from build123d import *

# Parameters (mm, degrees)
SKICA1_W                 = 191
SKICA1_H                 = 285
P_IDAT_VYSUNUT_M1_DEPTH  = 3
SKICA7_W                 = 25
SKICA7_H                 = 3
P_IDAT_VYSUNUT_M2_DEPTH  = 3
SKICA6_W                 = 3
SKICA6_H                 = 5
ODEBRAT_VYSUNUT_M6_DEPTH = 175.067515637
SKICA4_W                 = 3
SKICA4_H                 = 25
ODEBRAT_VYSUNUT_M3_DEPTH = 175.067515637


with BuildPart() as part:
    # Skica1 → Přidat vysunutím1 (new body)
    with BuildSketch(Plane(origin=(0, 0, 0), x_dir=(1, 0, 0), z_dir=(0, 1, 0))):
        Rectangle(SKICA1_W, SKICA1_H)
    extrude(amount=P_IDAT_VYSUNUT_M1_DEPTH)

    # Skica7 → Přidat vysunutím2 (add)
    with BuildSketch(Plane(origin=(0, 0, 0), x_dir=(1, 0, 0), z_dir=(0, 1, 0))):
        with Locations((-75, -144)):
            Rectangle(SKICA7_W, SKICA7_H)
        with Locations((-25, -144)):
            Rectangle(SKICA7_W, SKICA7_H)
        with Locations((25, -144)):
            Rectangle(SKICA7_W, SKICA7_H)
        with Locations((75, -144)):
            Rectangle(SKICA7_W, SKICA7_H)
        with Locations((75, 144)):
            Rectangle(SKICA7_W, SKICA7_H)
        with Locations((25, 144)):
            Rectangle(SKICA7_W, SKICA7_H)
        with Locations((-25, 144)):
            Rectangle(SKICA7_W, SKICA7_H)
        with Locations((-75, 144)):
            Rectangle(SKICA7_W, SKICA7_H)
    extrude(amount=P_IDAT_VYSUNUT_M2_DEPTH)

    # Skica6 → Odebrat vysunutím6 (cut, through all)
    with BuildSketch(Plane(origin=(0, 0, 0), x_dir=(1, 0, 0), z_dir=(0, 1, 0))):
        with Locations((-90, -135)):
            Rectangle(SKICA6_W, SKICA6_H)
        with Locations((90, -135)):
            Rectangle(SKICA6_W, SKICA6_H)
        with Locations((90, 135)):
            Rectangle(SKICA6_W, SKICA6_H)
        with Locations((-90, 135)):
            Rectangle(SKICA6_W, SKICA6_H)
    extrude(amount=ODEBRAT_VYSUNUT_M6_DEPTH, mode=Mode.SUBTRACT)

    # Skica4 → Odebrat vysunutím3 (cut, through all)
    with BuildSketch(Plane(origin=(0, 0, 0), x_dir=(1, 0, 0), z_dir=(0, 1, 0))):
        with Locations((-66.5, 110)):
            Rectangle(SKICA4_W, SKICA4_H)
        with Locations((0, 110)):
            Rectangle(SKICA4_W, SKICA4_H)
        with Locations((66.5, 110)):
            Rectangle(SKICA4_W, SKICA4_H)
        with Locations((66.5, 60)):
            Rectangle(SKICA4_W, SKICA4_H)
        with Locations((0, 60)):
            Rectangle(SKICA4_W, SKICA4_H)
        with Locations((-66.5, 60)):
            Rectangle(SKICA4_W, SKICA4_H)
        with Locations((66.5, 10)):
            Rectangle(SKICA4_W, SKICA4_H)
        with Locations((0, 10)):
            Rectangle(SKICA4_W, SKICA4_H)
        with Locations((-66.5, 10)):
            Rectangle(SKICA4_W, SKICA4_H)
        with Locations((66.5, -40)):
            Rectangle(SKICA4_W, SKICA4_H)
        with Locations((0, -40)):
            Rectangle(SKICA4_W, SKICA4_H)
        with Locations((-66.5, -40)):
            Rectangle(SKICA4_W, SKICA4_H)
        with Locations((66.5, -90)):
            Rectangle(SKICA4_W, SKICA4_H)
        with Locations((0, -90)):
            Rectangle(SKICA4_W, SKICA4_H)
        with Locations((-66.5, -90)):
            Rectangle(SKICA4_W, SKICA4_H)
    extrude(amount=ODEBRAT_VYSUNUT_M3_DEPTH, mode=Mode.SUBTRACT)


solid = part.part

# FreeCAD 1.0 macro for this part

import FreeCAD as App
import Part
import Sketcher

V = App.Vector
Q = App.Units.Quantity


def add_polygon(sketch, points):
    """Adds a closed chain of lines whose ends are joined by coincident constraints."""
    first, n = sketch.GeometryCount, len(points)
    for a, b in zip(points, points[1:] + points[:1]):
        sketch.addGeometry(Part.LineSegment(App.Vector(*a, 0), App.Vector(*b, 0)), False)
    for i in range(n):
        sketch.addConstraint(Sketcher.Constraint("Coincident", first + i, 2, first + (i + 1) % n, 1))

doc = App.newDocument("Part")
body = doc.addObject("PartDesign::Body", "Body")

# Sketch on XZ plane
sketch1 = body.newObject("Sketcher::SketchObject", "Sketch")
sketch1.AttachmentSupport = (doc.getObject("XZ_Plane"), [""])
sketch1.MapMode = "FlatFace"
add_polygon(sketch1, [(-95.5, -142.5), (-95.5, 142.5), (95.5, 142.5), (95.5, -142.5)])  # lines 0-3
sketch1.addConstraint([
    Sketcher.Constraint("Vertical", 0),
    Sketcher.Constraint("Horizontal", 1),
    Sketcher.Constraint("Vertical", 2),
    Sketcher.Constraint("Horizontal", 3),
    Sketcher.Constraint("Symmetric", 0, 2, 2, 2, -1, 1),
    Sketcher.Constraint("DistanceX", 1, 1, 1, 2, Q("191 mm")),
    Sketcher.Constraint("DistanceY", 0, 1, 0, 2, Q("285 mm")),
])
pad1 = body.newObject("PartDesign::Pad", "Pad")
pad1.Profile = sketch1
pad1.Length = 3
pad1.Reversed = True

# Sketch on XZ plane
sketch2 = body.newObject("Sketcher::SketchObject", "Sketch001")
sketch2.AttachmentSupport = (doc.getObject("XZ_Plane"), [""])
sketch2.MapMode = "FlatFace"
add_polygon(sketch2, [(-87.5, 142.5), (-87.5, 145.5), (-62.5, 145.5), (-62.5, 142.5)])  # lines 0-3
add_polygon(sketch2, [(-37.5, 142.5), (-37.5, 145.5), (-12.5, 145.5), (-12.5, 142.5)])  # lines 4-7
add_polygon(sketch2, [(12.5, 142.5), (12.5, 145.5), (37.5, 145.5), (37.5, 142.5)])  # lines 8-11
add_polygon(sketch2, [(62.5, 142.5), (62.5, 145.5), (87.5, 145.5), (87.5, 142.5)])  # lines 12-15
add_polygon(sketch2, [(62.5, -145.5), (62.5, -142.5), (87.5, -142.5), (87.5, -145.5)])  # lines 16-19
add_polygon(sketch2, [(12.5, -145.5), (12.5, -142.5), (37.5, -142.5), (37.5, -145.5)])  # lines 20-23
add_polygon(sketch2, [(-37.5, -145.5), (-37.5, -142.5), (-12.5, -142.5), (-12.5, -145.5)])  # lines 24-27
add_polygon(sketch2, [(-87.5, -145.5), (-87.5, -142.5), (-62.5, -142.5), (-62.5, -145.5)])  # lines 28-31
sketch2.addConstraint([
    Sketcher.Constraint("Vertical", 0),
    Sketcher.Constraint("Horizontal", 1),
    Sketcher.Constraint("Vertical", 2),
    Sketcher.Constraint("Horizontal", 3),
    Sketcher.Constraint("Vertical", 4),
    Sketcher.Constraint("Horizontal", 5),
    Sketcher.Constraint("Vertical", 6),
    Sketcher.Constraint("Horizontal", 7),
    Sketcher.Constraint("Vertical", 8),
    Sketcher.Constraint("Horizontal", 9),
    Sketcher.Constraint("Vertical", 10),
    Sketcher.Constraint("Horizontal", 11),
    Sketcher.Constraint("Vertical", 12),
    Sketcher.Constraint("Horizontal", 13),
    Sketcher.Constraint("Vertical", 14),
    Sketcher.Constraint("Horizontal", 15),
    Sketcher.Constraint("Vertical", 16),
    Sketcher.Constraint("Horizontal", 17),
    Sketcher.Constraint("Vertical", 18),
    Sketcher.Constraint("Horizontal", 19),
    Sketcher.Constraint("Vertical", 20),
    Sketcher.Constraint("Horizontal", 21),
    Sketcher.Constraint("Vertical", 22),
    Sketcher.Constraint("Horizontal", 23),
    Sketcher.Constraint("Vertical", 24),
    Sketcher.Constraint("Horizontal", 25),
    Sketcher.Constraint("Vertical", 26),
    Sketcher.Constraint("Horizontal", 27),
    Sketcher.Constraint("Vertical", 28),
    Sketcher.Constraint("Horizontal", 29),
    Sketcher.Constraint("Vertical", 30),
    Sketcher.Constraint("Horizontal", 31),
    Sketcher.Constraint("Symmetric", 2, 2, 16, 2, -1, 1),
    Sketcher.Constraint("Symmetric", 0, 2, 18, 2, -1, 1),
    Sketcher.Constraint("Symmetric", 6, 2, 20, 2, -1, 1),
    Sketcher.Constraint("Symmetric", 4, 2, 22, 2, -1, 1),
    Sketcher.Constraint("Symmetric", 10, 2, 24, 2, -1, 1),
    Sketcher.Constraint("Symmetric", 8, 2, 26, 2, -1, 1),
    Sketcher.Constraint("Symmetric", 14, 2, 28, 2, -1, 1),
    Sketcher.Constraint("Symmetric", 12, 2, 30, 2, -1, 1),
    Sketcher.Constraint("Symmetric", 5, 2, 8, 2, -2),
    Sketcher.Constraint("Symmetric", 7, 2, 10, 2, -2),
    Sketcher.Constraint("Symmetric", 1, 2, 12, 2, -2),
    Sketcher.Constraint("Symmetric", 3, 2, 14, 2, -2),
    Sketcher.Constraint("Horizontal", 1, 2, 4, 2),
    Sketcher.Constraint("Horizontal", 3, 2, 6, 2),
    Sketcher.Constraint("Equal", 3, 5),
    Sketcher.Constraint("DistanceX", 1, 1, 1, 2, Q("25 mm")),
    Sketcher.Constraint("DistanceY", 0, 1, 0, 2, Q("3 mm")),
    Sketcher.Constraint("DistanceX", 1, 2, 4, 2, Q("25 mm")),
    Sketcher.Constraint("DistanceX", 5, 2, 8, 2, Q("25 mm")),
    Sketcher.Constraint("DistanceY", 16, 2, 15, 2, Q("285 mm")),
])
pad2 = body.newObject("PartDesign::Pad", "Pad001")
pad2.Profile = sketch2
pad2.Length = 3
pad2.Reversed = True

# Sketch on XZ plane
sketch3 = body.newObject("Sketcher::SketchObject", "Sketch002")
sketch3.AttachmentSupport = (doc.getObject("XZ_Plane"), [""])
sketch3.MapMode = "FlatFace"
add_polygon(sketch3, [(-91.5, 132.5), (-91.5, 137.5), (-88.5, 137.5), (-88.5, 132.5)])  # lines 0-3
add_polygon(sketch3, [(88.5, 132.5), (88.5, 137.5), (91.5, 137.5), (91.5, 132.5)])  # lines 4-7
add_polygon(sketch3, [(88.5, -137.5), (88.5, -132.5), (91.5, -132.5), (91.5, -137.5)])  # lines 8-11
add_polygon(sketch3, [(-91.5, -137.5), (-91.5, -132.5), (-88.5, -132.5), (-88.5, -137.5)])  # lines 12-15
sketch3.addConstraint([
    Sketcher.Constraint("Vertical", 0),
    Sketcher.Constraint("Horizontal", 1),
    Sketcher.Constraint("Vertical", 2),
    Sketcher.Constraint("Horizontal", 3),
    Sketcher.Constraint("Vertical", 4),
    Sketcher.Constraint("Horizontal", 5),
    Sketcher.Constraint("Vertical", 6),
    Sketcher.Constraint("Horizontal", 7),
    Sketcher.Constraint("Vertical", 8),
    Sketcher.Constraint("Horizontal", 9),
    Sketcher.Constraint("Vertical", 10),
    Sketcher.Constraint("Horizontal", 11),
    Sketcher.Constraint("Vertical", 12),
    Sketcher.Constraint("Horizontal", 13),
    Sketcher.Constraint("Vertical", 14),
    Sketcher.Constraint("Horizontal", 15),
    Sketcher.Constraint("Symmetric", 2, 2, 8, 2, -1, 1),
    Sketcher.Constraint("Symmetric", 0, 2, 10, 2, -1, 1),
    Sketcher.Constraint("Symmetric", 6, 2, 12, 2, -1, 1),
    Sketcher.Constraint("Symmetric", 4, 2, 14, 2, -1, 1),
    Sketcher.Constraint("Symmetric", 1, 2, 4, 2, -2),
    Sketcher.Constraint("Symmetric", 3, 2, 6, 2, -2),
    Sketcher.Constraint("DistanceX", 1, 1, 1, 2, Q("3 mm")),
    Sketcher.Constraint("DistanceY", 0, 1, 0, 2, Q("5 mm")),
    Sketcher.Constraint("DistanceX", 1, 2, 4, 2, Q("177 mm")),
    Sketcher.Constraint("DistanceY", 8, 2, 7, 2, Q("265 mm")),
])
pocket1 = body.newObject("PartDesign::Pocket", "Pocket")
pocket1.Profile = sketch3
pocket1.Type = "ThroughAll"

# Sketch on XZ plane
sketch4 = body.newObject("Sketcher::SketchObject", "Sketch003")
sketch4.AttachmentSupport = (doc.getObject("XZ_Plane"), [""])
sketch4.MapMode = "FlatFace"
add_polygon(sketch4, [(-68, -122.5), (-68, -97.5), (-65, -97.5), (-65, -122.5)])  # lines 0-3
add_polygon(sketch4, [(-1.5, -122.5), (-1.5, -97.5), (1.5, -97.5), (1.5, -122.5)])  # lines 4-7
add_polygon(sketch4, [(65, -122.5), (65, -97.5), (68, -97.5), (68, -122.5)])  # lines 8-11
add_polygon(sketch4, [(65, -72.5), (65, -47.5), (68, -47.5), (68, -72.5)])  # lines 12-15
add_polygon(sketch4, [(-1.5, -72.5), (-1.5, -47.5), (1.5, -47.5), (1.5, -72.5)])  # lines 16-19
add_polygon(sketch4, [(-68, -72.5), (-68, -47.5), (-65, -47.5), (-65, -72.5)])  # lines 20-23
add_polygon(sketch4, [(65, -22.5), (65, 2.5), (68, 2.5), (68, -22.5)])  # lines 24-27
add_polygon(sketch4, [(-1.5, -22.5), (-1.5, 2.5), (1.5, 2.5), (1.5, -22.5)])  # lines 28-31
add_polygon(sketch4, [(-68, -22.5), (-68, 2.5), (-65, 2.5), (-65, -22.5)])  # lines 32-35
add_polygon(sketch4, [(65, 27.5), (65, 52.5), (68, 52.5), (68, 27.5)])  # lines 36-39
add_polygon(sketch4, [(-1.5, 27.5), (-1.5, 52.5), (1.5, 52.5), (1.5, 27.5)])  # lines 40-43
add_polygon(sketch4, [(-68, 27.5), (-68, 52.5), (-65, 52.5), (-65, 27.5)])  # lines 44-47
add_polygon(sketch4, [(65, 77.5), (65, 102.5), (68, 102.5), (68, 77.5)])  # lines 48-51
add_polygon(sketch4, [(-1.5, 77.5), (-1.5, 102.5), (1.5, 102.5), (1.5, 77.5)])  # lines 52-55
add_polygon(sketch4, [(-68, 77.5), (-68, 102.5), (-65, 102.5), (-65, 77.5)])  # lines 56-59
sketch4.addConstraint([
    Sketcher.Constraint("Vertical", 0),
    Sketcher.Constraint("Horizontal", 1),
    Sketcher.Constraint("Vertical", 2),
    Sketcher.Constraint("Horizontal", 3),
    Sketcher.Constraint("Vertical", 4),
    Sketcher.Constraint("Horizontal", 5),
    Sketcher.Constraint("Vertical", 6),
    Sketcher.Constraint("Horizontal", 7),
    Sketcher.Constraint("Vertical", 8),
    Sketcher.Constraint("Horizontal", 9),
    Sketcher.Constraint("Vertical", 10),
    Sketcher.Constraint("Horizontal", 11),
    Sketcher.Constraint("Vertical", 12),
    Sketcher.Constraint("Horizontal", 13),
    Sketcher.Constraint("Vertical", 14),
    Sketcher.Constraint("Horizontal", 15),
    Sketcher.Constraint("Vertical", 16),
    Sketcher.Constraint("Horizontal", 17),
    Sketcher.Constraint("Vertical", 18),
    Sketcher.Constraint("Horizontal", 19),
    Sketcher.Constraint("Vertical", 20),
    Sketcher.Constraint("Horizontal", 21),
    Sketcher.Constraint("Vertical", 22),
    Sketcher.Constraint("Horizontal", 23),
    Sketcher.Constraint("Vertical", 24),
    Sketcher.Constraint("Horizontal", 25),
    Sketcher.Constraint("Vertical", 26),
    Sketcher.Constraint("Horizontal", 27),
    Sketcher.Constraint("Vertical", 28),
    Sketcher.Constraint("Horizontal", 29),
    Sketcher.Constraint("Vertical", 30),
    Sketcher.Constraint("Horizontal", 31),
    Sketcher.Constraint("Vertical", 32),
    Sketcher.Constraint("Horizontal", 33),
    Sketcher.Constraint("Vertical", 34),
    Sketcher.Constraint("Horizontal", 35),
    Sketcher.Constraint("Vertical", 36),
    Sketcher.Constraint("Horizontal", 37),
    Sketcher.Constraint("Vertical", 38),
    Sketcher.Constraint("Horizontal", 39),
    Sketcher.Constraint("Vertical", 40),
    Sketcher.Constraint("Horizontal", 41),
    Sketcher.Constraint("Vertical", 42),
    Sketcher.Constraint("Horizontal", 43),
    Sketcher.Constraint("Vertical", 44),
    Sketcher.Constraint("Horizontal", 45),
    Sketcher.Constraint("Vertical", 46),
    Sketcher.Constraint("Horizontal", 47),
    Sketcher.Constraint("Vertical", 48),
    Sketcher.Constraint("Horizontal", 49),
    Sketcher.Constraint("Vertical", 50),
    Sketcher.Constraint("Horizontal", 51),
    Sketcher.Constraint("Vertical", 52),
    Sketcher.Constraint("Horizontal", 53),
    Sketcher.Constraint("Vertical", 54),
    Sketcher.Constraint("Horizontal", 55),
    Sketcher.Constraint("Vertical", 56),
    Sketcher.Constraint("Horizontal", 57),
    Sketcher.Constraint("Vertical", 58),
    Sketcher.Constraint("Horizontal", 59),
    Sketcher.Constraint("Symmetric", 1, 2, 8, 2, -2),
    Sketcher.Constraint("Symmetric", 3, 2, 10, 2, -2),
    Sketcher.Constraint("Symmetric", 13, 2, 20, 2, -2),
    Sketcher.Constraint("Symmetric", 15, 2, 22, 2, -2),
    Sketcher.Constraint("Symmetric", 25, 2, 32, 2, -2),
    Sketcher.Constraint("Symmetric", 27, 2, 34, 2, -2),
    Sketcher.Constraint("Symmetric", 37, 2, 44, 2, -2),
    Sketcher.Constraint("Symmetric", 39, 2, 46, 2, -2),
    Sketcher.Constraint("Symmetric", 49, 2, 56, 2, -2),
    Sketcher.Constraint("Symmetric", 51, 2, 58, 2, -2),
    Sketcher.Constraint("Horizontal", 1, 2, 4, 2),
    Sketcher.Constraint("Horizontal", 3, 2, 6, 2),
    Sketcher.Constraint("Horizontal", 13, 2, 16, 2),
    Sketcher.Constraint("Horizontal", 15, 2, 18, 2),
    Sketcher.Constraint("Horizontal", 25, 2, 28, 2),
    Sketcher.Constraint("Horizontal", 27, 2, 30, 2),
    Sketcher.Constraint("Horizontal", 37, 2, 40, 2),
    Sketcher.Constraint("Horizontal", 39, 2, 42, 2),
    Sketcher.Constraint("Horizontal", 49, 2, 52, 2),
    Sketcher.Constraint("Horizontal", 51, 2, 54, 2),
    Sketcher.Constraint("Vertical", 11, 2, 12, 2),
    Sketcher.Constraint("Vertical", 10, 2, 13, 2),
    Sketcher.Constraint("Vertical", 7, 2, 16, 2),
    Sketcher.Constraint("Vertical", 6, 2, 17, 2),
    Sketcher.Constraint("Vertical", 15, 2, 24, 2),
    Sketcher.Constraint("Vertical", 14, 2, 25, 2),
    Sketcher.Constraint("Vertical", 19, 2, 28, 2),
    Sketcher.Constraint("Vertical", 18, 2, 29, 2),
    Sketcher.Constraint("Vertical", 27, 2, 36, 2),
    Sketcher.Constraint("Vertical", 26, 2, 37, 2),
    Sketcher.Constraint("Vertical", 31, 2, 40, 2),
    Sketcher.Constraint("Vertical", 30, 2, 41, 2),
    Sketcher.Constraint("Vertical", 39, 2, 48, 2),
    Sketcher.Constraint("Vertical", 38, 2, 49, 2),
    Sketcher.Constraint("Vertical", 43, 2, 52, 2),
    Sketcher.Constraint("Vertical", 42, 2, 53, 2),
    Sketcher.Constraint("Equal", 3, 5),
    Sketcher.Constraint("Equal", 10, 12),
    Sketcher.Constraint("Equal", 22, 24),
    Sketcher.Constraint("Equal", 34, 36),
    Sketcher.Constraint("Equal", 46, 48),
    Sketcher.Constraint("DistanceX", 1, 1, 1, 2, Q("3 mm")),
    Sketcher.Constraint("DistanceY", 0, 1, 0, 2, Q("25 mm")),
    Sketcher.Constraint("DistanceX", 0, 2, -1, 1, Q("68 mm")),
    Sketcher.Constraint("DistanceY", 8, 2, 12, 2, Q("50 mm")),
    Sketcher.Constraint("DistanceY", 12, 2, 24, 2, Q("50 mm")),
    Sketcher.Constraint("DistanceY", 24, 2, 36, 2, Q("50 mm")),
    Sketcher.Constraint("DistanceY", 36, 2, 48, 2, Q("50 mm")),
    Sketcher.Constraint("DistanceY", 0, 2, -1, 1, Q("97.5 mm")),
    Sketcher.Constraint("DistanceX", 4, 2, -1, 1, Q("1.5 mm")),
])
pocket2 = body.newObject("PartDesign::Pocket", "Pocket001")
pocket2.Profile = sketch4
pocket2.Type = "ThroughAll"

doc.recompute()
